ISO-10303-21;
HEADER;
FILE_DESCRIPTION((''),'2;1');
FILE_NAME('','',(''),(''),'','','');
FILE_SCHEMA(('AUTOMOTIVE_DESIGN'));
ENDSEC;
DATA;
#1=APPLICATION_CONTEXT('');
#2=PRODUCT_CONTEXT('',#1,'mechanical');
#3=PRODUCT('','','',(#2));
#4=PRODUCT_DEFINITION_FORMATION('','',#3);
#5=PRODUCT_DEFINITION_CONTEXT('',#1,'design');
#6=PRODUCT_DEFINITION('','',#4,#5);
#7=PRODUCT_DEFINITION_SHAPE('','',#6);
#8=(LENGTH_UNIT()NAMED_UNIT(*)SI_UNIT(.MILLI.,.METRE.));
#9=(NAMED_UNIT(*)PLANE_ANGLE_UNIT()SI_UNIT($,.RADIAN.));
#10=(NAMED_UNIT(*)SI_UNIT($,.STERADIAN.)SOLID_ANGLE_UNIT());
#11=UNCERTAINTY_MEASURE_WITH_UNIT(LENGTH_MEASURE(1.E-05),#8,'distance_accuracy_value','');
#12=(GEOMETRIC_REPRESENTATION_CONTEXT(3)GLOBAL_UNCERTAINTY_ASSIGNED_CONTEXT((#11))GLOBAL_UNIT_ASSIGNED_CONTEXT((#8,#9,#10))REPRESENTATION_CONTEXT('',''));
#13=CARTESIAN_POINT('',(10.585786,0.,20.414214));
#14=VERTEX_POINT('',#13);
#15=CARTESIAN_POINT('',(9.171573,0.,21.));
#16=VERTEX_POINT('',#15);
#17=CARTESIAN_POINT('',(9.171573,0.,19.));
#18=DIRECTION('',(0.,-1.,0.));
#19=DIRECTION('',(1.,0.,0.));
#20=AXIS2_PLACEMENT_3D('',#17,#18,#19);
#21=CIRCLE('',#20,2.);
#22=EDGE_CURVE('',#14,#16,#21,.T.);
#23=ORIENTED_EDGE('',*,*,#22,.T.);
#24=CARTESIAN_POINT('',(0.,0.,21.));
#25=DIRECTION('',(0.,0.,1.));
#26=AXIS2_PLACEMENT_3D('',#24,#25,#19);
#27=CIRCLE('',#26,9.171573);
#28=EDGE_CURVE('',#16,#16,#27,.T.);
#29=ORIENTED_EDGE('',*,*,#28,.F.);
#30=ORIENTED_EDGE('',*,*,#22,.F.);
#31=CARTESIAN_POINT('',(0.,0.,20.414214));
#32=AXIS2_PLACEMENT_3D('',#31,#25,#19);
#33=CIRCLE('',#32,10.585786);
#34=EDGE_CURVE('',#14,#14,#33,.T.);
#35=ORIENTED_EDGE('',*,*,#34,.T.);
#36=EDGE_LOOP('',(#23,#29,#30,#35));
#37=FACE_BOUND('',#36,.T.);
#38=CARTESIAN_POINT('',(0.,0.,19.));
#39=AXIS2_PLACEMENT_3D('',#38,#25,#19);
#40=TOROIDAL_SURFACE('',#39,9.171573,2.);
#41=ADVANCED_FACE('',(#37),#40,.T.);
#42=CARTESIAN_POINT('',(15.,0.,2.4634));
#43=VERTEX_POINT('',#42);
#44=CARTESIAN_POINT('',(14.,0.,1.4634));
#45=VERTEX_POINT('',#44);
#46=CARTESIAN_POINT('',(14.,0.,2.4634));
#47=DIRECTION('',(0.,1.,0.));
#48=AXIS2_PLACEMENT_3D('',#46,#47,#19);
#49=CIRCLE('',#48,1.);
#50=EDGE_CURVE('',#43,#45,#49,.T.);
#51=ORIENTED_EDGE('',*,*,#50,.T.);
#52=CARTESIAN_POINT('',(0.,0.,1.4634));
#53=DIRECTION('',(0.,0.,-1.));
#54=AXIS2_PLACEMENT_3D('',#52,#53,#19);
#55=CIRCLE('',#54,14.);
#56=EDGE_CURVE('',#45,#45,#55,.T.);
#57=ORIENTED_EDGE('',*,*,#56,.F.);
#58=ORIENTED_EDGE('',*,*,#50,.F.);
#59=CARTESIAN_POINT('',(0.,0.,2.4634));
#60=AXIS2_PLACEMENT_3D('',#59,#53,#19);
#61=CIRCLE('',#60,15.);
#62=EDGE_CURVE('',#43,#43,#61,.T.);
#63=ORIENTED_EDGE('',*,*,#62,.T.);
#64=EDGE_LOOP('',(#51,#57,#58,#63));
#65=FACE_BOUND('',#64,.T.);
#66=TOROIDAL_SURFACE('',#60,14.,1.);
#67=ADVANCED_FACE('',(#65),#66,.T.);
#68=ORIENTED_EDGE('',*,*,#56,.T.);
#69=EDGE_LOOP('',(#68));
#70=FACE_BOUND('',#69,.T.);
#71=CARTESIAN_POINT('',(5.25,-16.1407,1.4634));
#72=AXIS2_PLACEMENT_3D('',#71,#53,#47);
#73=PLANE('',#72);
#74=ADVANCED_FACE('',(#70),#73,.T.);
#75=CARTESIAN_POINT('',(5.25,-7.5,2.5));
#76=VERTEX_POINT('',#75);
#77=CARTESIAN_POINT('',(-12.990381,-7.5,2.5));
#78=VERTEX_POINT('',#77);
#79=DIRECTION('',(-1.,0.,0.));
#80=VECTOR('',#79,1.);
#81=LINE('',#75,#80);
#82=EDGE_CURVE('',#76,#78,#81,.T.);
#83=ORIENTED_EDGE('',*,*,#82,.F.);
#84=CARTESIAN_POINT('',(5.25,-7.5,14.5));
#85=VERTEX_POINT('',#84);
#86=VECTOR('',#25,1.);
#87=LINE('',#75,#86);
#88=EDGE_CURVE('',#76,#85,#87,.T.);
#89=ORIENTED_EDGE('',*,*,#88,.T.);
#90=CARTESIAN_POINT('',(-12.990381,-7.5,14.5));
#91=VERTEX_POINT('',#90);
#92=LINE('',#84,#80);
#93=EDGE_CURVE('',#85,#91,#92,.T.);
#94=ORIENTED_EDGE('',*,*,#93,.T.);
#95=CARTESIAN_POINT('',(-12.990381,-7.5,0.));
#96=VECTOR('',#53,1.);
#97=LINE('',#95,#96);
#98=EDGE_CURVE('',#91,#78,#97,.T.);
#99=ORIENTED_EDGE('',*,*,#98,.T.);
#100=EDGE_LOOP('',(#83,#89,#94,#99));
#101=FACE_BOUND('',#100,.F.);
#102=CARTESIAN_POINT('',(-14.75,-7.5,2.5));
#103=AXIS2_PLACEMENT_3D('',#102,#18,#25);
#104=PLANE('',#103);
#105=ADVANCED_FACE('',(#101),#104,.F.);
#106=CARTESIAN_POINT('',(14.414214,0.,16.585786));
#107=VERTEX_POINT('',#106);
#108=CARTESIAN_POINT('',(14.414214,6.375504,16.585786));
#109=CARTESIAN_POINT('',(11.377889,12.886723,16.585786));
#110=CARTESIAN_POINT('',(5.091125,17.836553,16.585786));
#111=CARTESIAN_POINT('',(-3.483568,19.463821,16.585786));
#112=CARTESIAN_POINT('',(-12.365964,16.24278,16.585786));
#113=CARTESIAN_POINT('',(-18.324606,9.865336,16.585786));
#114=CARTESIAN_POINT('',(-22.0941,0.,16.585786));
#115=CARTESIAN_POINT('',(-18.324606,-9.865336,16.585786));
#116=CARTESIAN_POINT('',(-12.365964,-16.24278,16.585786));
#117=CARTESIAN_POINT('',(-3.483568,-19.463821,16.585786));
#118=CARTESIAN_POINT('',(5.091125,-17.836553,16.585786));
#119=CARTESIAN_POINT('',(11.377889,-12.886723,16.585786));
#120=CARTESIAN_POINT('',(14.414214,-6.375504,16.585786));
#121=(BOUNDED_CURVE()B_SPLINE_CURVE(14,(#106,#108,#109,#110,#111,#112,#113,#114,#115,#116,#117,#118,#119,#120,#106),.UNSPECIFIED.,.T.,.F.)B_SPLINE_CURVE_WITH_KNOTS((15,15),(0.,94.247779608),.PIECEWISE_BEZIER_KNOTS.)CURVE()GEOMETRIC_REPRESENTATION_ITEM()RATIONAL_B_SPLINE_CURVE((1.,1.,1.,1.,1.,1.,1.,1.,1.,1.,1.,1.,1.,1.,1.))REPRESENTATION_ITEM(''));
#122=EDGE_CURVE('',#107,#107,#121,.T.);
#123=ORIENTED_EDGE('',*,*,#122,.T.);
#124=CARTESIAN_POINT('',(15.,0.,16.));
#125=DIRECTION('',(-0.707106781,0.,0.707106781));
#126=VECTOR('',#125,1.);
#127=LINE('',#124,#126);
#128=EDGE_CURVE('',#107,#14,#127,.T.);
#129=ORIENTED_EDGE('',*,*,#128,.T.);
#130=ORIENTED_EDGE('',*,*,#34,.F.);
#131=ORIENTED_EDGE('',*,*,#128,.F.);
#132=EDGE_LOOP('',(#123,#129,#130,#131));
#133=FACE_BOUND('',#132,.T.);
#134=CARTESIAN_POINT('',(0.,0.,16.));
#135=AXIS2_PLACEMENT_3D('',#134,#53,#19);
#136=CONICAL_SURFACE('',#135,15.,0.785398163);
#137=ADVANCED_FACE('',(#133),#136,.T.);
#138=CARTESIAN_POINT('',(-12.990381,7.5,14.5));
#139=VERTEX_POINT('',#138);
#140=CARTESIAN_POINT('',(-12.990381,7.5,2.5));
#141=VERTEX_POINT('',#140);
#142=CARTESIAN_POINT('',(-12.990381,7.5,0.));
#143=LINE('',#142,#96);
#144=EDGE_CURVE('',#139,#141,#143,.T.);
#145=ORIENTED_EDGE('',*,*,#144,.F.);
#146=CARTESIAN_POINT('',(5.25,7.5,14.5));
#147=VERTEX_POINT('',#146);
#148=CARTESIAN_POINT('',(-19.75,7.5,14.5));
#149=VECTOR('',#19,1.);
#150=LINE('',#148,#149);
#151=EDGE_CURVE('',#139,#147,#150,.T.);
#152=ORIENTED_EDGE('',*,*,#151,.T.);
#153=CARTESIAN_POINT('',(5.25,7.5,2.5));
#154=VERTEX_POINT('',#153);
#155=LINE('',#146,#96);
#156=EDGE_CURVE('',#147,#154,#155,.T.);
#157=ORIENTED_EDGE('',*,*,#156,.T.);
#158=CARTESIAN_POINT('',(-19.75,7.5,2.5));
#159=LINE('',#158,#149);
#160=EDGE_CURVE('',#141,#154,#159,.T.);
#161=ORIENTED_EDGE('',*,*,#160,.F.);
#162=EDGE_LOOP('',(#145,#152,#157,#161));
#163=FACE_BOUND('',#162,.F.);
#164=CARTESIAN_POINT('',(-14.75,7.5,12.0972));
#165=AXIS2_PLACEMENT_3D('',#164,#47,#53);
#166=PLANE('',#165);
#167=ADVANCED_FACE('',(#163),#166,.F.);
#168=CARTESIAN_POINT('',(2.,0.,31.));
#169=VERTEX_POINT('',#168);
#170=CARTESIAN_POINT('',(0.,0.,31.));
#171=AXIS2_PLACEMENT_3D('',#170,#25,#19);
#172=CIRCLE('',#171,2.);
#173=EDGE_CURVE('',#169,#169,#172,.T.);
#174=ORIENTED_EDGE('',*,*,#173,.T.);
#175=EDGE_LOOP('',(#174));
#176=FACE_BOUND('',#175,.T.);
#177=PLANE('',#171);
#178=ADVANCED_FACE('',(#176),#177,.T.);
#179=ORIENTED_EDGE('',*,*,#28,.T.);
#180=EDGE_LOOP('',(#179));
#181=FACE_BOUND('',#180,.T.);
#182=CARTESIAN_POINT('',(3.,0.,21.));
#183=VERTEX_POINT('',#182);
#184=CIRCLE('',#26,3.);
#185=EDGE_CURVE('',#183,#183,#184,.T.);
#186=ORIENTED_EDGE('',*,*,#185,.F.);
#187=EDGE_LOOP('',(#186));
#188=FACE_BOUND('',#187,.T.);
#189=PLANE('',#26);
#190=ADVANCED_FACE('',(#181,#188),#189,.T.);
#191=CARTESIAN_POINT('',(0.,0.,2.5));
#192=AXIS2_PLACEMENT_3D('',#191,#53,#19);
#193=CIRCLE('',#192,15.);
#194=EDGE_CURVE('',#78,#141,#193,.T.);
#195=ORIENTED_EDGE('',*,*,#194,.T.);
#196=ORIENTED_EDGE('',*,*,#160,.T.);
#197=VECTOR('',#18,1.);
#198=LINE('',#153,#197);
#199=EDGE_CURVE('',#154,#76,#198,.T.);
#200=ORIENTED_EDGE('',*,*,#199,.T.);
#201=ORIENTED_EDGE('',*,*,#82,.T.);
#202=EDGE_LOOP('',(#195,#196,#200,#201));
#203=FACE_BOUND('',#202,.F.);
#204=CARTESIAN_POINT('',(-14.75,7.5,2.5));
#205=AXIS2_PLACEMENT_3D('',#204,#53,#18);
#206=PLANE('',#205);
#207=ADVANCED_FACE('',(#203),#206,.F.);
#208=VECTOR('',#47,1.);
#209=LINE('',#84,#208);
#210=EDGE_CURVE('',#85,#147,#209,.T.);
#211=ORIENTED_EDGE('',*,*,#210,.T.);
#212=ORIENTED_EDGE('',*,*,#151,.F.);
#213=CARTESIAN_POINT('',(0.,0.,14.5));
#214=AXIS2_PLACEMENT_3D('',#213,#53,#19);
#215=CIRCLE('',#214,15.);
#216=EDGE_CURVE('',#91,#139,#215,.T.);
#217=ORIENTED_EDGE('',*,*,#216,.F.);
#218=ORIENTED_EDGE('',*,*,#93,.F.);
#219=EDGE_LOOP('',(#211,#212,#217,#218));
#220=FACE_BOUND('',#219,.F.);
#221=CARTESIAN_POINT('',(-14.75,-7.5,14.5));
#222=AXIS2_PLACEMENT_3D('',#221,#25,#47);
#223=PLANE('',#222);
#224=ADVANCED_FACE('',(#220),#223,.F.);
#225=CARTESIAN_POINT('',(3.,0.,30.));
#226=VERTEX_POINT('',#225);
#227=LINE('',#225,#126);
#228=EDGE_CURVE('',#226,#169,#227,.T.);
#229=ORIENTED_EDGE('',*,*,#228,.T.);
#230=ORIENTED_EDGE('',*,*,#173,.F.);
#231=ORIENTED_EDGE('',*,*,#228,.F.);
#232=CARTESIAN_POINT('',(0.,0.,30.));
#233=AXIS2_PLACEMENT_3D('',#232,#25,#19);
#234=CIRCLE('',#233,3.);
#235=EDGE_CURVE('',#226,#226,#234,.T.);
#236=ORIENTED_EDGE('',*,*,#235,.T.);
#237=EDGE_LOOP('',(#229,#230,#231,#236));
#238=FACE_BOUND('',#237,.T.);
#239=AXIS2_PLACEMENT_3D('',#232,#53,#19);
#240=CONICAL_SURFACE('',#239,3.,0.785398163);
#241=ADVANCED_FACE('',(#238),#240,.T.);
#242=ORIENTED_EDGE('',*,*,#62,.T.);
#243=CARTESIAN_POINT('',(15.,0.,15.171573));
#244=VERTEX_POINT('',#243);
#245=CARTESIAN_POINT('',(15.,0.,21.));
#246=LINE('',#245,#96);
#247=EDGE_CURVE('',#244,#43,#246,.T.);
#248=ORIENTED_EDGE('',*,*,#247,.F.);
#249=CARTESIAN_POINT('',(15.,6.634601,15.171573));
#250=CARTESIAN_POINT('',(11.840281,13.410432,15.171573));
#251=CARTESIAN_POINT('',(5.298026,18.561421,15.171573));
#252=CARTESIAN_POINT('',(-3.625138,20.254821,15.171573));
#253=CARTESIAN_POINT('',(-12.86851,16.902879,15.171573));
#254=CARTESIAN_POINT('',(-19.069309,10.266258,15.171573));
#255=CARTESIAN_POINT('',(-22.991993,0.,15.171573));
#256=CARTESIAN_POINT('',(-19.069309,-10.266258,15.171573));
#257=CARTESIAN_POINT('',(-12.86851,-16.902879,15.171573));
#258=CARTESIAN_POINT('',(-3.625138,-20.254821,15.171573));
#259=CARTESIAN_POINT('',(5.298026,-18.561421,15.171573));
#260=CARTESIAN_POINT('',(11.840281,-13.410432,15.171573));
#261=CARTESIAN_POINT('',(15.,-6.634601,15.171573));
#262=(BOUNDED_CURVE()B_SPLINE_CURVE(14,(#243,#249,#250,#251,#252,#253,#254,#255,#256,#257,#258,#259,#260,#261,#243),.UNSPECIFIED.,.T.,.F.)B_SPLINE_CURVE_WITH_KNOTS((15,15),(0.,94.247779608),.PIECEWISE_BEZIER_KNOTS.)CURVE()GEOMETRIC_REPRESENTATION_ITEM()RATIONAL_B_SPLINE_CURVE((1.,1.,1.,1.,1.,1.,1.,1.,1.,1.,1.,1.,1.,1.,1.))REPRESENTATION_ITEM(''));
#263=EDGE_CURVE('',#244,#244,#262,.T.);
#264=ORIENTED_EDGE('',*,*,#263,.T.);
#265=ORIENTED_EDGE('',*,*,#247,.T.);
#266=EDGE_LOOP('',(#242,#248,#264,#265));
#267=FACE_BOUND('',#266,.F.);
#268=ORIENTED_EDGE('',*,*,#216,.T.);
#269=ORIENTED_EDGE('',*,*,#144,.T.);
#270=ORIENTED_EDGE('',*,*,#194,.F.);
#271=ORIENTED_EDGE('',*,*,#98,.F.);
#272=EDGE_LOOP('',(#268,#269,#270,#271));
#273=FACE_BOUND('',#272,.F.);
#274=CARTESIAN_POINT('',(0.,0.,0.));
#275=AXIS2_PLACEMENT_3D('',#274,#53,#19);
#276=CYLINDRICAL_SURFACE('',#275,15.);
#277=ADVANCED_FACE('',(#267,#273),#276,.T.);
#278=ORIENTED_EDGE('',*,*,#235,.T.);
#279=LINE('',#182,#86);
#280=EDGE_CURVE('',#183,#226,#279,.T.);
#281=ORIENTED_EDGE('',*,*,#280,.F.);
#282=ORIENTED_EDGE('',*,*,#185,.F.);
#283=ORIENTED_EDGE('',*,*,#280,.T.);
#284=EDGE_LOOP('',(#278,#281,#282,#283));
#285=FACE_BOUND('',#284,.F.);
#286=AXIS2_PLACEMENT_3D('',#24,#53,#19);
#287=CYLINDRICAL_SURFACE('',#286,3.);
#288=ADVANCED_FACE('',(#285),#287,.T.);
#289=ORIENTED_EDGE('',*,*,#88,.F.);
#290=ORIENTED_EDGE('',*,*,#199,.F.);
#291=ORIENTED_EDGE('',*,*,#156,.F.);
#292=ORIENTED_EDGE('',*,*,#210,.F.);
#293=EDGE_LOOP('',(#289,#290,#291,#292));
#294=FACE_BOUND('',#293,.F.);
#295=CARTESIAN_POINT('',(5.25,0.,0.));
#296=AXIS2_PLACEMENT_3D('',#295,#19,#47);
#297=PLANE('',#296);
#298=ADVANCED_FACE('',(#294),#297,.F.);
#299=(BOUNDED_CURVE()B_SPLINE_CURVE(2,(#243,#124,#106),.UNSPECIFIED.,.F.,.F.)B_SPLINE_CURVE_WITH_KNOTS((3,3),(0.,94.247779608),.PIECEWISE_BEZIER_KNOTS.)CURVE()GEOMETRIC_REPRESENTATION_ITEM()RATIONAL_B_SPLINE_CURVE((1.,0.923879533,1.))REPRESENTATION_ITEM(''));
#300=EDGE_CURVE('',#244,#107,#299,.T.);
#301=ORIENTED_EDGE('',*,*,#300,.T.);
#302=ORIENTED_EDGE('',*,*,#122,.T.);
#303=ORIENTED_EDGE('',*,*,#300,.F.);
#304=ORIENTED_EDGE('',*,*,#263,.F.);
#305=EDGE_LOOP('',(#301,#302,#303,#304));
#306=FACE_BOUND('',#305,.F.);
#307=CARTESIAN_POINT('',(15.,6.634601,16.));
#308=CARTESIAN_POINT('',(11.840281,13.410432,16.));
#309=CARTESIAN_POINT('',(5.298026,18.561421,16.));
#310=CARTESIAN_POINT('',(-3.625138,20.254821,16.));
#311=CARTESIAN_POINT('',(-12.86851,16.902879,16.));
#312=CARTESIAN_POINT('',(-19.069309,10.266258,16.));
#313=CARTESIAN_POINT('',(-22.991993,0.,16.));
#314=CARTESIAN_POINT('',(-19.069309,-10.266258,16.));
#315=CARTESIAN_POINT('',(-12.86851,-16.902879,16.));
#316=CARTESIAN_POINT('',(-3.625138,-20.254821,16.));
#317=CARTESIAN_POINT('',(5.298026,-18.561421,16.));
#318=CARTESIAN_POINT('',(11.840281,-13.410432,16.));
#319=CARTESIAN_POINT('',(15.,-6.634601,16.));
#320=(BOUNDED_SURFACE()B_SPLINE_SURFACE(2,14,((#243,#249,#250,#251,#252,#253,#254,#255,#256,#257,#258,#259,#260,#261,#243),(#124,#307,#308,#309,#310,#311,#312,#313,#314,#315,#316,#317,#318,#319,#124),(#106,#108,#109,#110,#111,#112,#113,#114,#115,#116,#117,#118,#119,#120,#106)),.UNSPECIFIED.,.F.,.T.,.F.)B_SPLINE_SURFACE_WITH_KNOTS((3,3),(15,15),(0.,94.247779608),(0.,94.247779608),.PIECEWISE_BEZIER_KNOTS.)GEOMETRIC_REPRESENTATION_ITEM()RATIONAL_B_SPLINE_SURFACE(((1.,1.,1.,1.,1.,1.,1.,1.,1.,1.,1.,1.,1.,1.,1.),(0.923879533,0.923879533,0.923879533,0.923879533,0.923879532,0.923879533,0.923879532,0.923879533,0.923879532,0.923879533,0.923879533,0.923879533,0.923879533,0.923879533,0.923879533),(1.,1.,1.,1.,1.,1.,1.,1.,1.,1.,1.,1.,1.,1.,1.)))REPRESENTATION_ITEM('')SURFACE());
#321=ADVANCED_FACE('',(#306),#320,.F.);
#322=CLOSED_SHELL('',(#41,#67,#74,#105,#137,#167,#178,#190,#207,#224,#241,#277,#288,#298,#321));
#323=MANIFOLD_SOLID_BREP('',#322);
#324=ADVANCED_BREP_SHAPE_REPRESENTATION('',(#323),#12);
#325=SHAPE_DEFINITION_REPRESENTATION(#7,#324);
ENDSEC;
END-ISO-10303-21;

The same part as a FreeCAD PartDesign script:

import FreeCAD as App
import Part
import Sketcher
from FreeCAD import Vector
Q = App.Units.Quantity


def edges_at(feature, points):
    """Names of the edges that pass closest to the given points."""
    edges = feature.Shape.Edges
    near = lambda p: min(range(len(edges)), key=lambda i: edges[i].distToShape(Part.Vertex(*p))[0])
    return sorted({f"Edge{near(p) + 1}" for p in points})


def add_polygon(sketch, points):
    """Adds a closed chain of lines whose ends are joined by coincident constraints."""
    first, n = sketch.GeometryCount, len(points)
    for a, b in zip(points, points[1:] + points[:1]):
        sketch.addGeometry(Part.LineSegment(App.Vector(*a, 0), App.Vector(*b, 0)), False)
    for i in range(n):
        sketch.addConstraint(Sketcher.Constraint("Coincident", first + i, 2, first + (i + 1) % n, 1))

doc = App.newDocument("Part")
body = doc.addObject("PartDesign::Body", "Body")

# Sketch on XY plane
sketch1 = body.newObject("Sketcher::SketchObject", "Sketch")
sketch1.AttachmentSupport = (doc.getObject("XY_Plane"), [""])
sketch1.MapMode = "FlatFace"
sketch1.addGeometry(Part.Circle(Vector(0, 0, 0), Vector(0, 0, 1), 15), False)
sketch1.addConstraint([
    Sketcher.Constraint("Coincident", 0, 3, -1, 1),
    Sketcher.Constraint("Diameter", 0, Q("30 mm")),
])
pad1 = body.newObject("PartDesign::Pad", "Pad")
pad1.Profile = sketch1
pad1.Length = 20

# Sketch on XY plane
sketch2 = body.newObject("Sketcher::SketchObject", "Sketch001")
sketch2.AttachmentSupport = (doc.getObject("XY_Plane"), [""])
sketch2.MapMode = "FlatFace"
sketch2.AttachmentOffset = App.Placement(Vector(0, 0, 20), App.Rotation())
sketch2.addGeometry(Part.Circle(Vector(0, 0, 0), Vector(0, 0, 1), 15), False)
sketch2.addConstraint([
    Sketcher.Constraint("Coincident", 0, 3, -1, 1),
    Sketcher.Constraint("Diameter", 0, Q("30 mm")),
])
pad2 = body.newObject("PartDesign::Pad", "Pad001")
pad2.Profile = sketch2
pad2.Length = 1
doc.recompute()

chamfer = body.newObject("PartDesign::Chamfer", "Chamfer")
chamfer.Base = (pad2, edges_at(pad2, [(-15, 0, 21)]))
chamfer.Size = 5
doc.recompute()

fillet = body.newObject("PartDesign::Fillet", "Fillet")
fillet.Base = (chamfer, edges_at(chamfer, [(-15, 0, 16), (-10, 0, 21)]))
fillet.Radius = 2

# Sketch on XY plane
sketch3 = body.newObject("Sketcher::SketchObject", "Sketch002")
sketch3.AttachmentSupport = (doc.getObject("XY_Plane"), [""])
sketch3.MapMode = "FlatFace"
sketch3.AttachmentOffset = App.Placement(Vector(0, 0, 21), App.Rotation())
sketch3.addGeometry(Part.Circle(Vector(0, 0, 0), Vector(0, 0, 1), 3), False)
sketch3.addConstraint([
    Sketcher.Constraint("Coincident", 0, 3, -1, 1),
    Sketcher.Constraint("Diameter", 0, Q("6 mm")),
])
pad3 = body.newObject("PartDesign::Pad", "Pad002")
pad3.Profile = sketch3
pad3.Length = 10
doc.recompute()

chamfer2 = body.newObject("PartDesign::Chamfer", "Chamfer001")
chamfer2.Base = (pad3, edges_at(pad3, [(-3, 0, 31)]))
chamfer2.Size = 1
doc.recompute()

fillet2 = body.newObject("PartDesign::Fillet", "Fillet001")
fillet2.Base = (chamfer2, edges_at(chamfer2, [(-15, 0, 0)]))
fillet2.Radius = 1

# Sketch on YZ plane
sketch4 = body.newObject("Sketcher::SketchObject", "Sketch003")
sketch4.AttachmentSupport = (doc.getObject("YZ_Plane"), [""])
sketch4.MapMode = "FlatFace"
sketch4.AttachmentOffset = App.Placement(Vector(0, 0, -14.75), App.Rotation())
add_polygon(sketch4, [(-7.5, 2.5), (7.5, 2.5), (7.5, 14.5), (-7.5, 14.5)])  # lines 0-3
sketch4.addConstraint([
    Sketcher.Constraint("Horizontal", 0),
    Sketcher.Constraint("Vertical", 1),
    Sketcher.Constraint("Horizontal", 2),
    Sketcher.Constraint("Vertical", 3),
    Sketcher.Constraint("DistanceX", 0, 1, 0, 2, Q("15 mm")),
    Sketcher.Constraint("DistanceY", 1, 1, 1, 2, Q("12 mm")),
    Sketcher.Constraint("DistanceX", -1, 1, 0, 2, Q("7.5 mm")),
    Sketcher.Constraint("DistanceY", -1, 1, 0, 2, Q("2.5 mm")),
])
pocket1 = body.newObject("PartDesign::Pocket", "Pocket")
pocket1.Profile = sketch4
pocket1.Type = "TwoLengths"
pocket1.Length = 20
pocket1.Length2 = 5
pocket1.Reversed = True

# Sketch on YZ plane
sketch5 = body.newObject("Sketcher::SketchObject", "Sketch004")
sketch5.AttachmentSupport = (doc.getObject("YZ_Plane"), [""])
sketch5.MapMode = "FlatFace"
sketch5.AttachmentOffset = App.Placement(Vector(0, 0, 5.25), App.Rotation())
add_polygon(sketch5, [(17.2598, 0), (-16.1407, 0), (-16.1407, 1.4634), (17.2598, 1.4634)])  # lines 0-3
sketch5.addConstraint([
    Sketcher.Constraint("Horizontal", 0),
    Sketcher.Constraint("Vertical", 1),
    Sketcher.Constraint("Horizontal", 2),
    Sketcher.Constraint("Vertical", 3),
    Sketcher.Constraint("PointOnObject", 0, 2, -1),
    Sketcher.Constraint("DistanceX", 0, 2, 0, 1, Q("33.4005 mm")),
    Sketcher.Constraint("DistanceY", 1, 1, 1, 2, Q("1.4634 mm")),
    Sketcher.Constraint("DistanceX", 0, 2, -1, 1, Q("16.1407 mm")),
])
pocket2 = body.newObject("PartDesign::Pocket", "Pocket001")
pocket2.Profile = sketch5
pocket2.Type = "ThroughAll"
pocket2.Midplane = True
doc.recompute()

fillet3 = body.newObject("PartDesign::Fillet", "Fillet002")
fillet3.Base = (pocket2, edges_at(pocket2, [(-15, 0, 1.463)]))
fillet3.Radius = 1

doc.recompute()
